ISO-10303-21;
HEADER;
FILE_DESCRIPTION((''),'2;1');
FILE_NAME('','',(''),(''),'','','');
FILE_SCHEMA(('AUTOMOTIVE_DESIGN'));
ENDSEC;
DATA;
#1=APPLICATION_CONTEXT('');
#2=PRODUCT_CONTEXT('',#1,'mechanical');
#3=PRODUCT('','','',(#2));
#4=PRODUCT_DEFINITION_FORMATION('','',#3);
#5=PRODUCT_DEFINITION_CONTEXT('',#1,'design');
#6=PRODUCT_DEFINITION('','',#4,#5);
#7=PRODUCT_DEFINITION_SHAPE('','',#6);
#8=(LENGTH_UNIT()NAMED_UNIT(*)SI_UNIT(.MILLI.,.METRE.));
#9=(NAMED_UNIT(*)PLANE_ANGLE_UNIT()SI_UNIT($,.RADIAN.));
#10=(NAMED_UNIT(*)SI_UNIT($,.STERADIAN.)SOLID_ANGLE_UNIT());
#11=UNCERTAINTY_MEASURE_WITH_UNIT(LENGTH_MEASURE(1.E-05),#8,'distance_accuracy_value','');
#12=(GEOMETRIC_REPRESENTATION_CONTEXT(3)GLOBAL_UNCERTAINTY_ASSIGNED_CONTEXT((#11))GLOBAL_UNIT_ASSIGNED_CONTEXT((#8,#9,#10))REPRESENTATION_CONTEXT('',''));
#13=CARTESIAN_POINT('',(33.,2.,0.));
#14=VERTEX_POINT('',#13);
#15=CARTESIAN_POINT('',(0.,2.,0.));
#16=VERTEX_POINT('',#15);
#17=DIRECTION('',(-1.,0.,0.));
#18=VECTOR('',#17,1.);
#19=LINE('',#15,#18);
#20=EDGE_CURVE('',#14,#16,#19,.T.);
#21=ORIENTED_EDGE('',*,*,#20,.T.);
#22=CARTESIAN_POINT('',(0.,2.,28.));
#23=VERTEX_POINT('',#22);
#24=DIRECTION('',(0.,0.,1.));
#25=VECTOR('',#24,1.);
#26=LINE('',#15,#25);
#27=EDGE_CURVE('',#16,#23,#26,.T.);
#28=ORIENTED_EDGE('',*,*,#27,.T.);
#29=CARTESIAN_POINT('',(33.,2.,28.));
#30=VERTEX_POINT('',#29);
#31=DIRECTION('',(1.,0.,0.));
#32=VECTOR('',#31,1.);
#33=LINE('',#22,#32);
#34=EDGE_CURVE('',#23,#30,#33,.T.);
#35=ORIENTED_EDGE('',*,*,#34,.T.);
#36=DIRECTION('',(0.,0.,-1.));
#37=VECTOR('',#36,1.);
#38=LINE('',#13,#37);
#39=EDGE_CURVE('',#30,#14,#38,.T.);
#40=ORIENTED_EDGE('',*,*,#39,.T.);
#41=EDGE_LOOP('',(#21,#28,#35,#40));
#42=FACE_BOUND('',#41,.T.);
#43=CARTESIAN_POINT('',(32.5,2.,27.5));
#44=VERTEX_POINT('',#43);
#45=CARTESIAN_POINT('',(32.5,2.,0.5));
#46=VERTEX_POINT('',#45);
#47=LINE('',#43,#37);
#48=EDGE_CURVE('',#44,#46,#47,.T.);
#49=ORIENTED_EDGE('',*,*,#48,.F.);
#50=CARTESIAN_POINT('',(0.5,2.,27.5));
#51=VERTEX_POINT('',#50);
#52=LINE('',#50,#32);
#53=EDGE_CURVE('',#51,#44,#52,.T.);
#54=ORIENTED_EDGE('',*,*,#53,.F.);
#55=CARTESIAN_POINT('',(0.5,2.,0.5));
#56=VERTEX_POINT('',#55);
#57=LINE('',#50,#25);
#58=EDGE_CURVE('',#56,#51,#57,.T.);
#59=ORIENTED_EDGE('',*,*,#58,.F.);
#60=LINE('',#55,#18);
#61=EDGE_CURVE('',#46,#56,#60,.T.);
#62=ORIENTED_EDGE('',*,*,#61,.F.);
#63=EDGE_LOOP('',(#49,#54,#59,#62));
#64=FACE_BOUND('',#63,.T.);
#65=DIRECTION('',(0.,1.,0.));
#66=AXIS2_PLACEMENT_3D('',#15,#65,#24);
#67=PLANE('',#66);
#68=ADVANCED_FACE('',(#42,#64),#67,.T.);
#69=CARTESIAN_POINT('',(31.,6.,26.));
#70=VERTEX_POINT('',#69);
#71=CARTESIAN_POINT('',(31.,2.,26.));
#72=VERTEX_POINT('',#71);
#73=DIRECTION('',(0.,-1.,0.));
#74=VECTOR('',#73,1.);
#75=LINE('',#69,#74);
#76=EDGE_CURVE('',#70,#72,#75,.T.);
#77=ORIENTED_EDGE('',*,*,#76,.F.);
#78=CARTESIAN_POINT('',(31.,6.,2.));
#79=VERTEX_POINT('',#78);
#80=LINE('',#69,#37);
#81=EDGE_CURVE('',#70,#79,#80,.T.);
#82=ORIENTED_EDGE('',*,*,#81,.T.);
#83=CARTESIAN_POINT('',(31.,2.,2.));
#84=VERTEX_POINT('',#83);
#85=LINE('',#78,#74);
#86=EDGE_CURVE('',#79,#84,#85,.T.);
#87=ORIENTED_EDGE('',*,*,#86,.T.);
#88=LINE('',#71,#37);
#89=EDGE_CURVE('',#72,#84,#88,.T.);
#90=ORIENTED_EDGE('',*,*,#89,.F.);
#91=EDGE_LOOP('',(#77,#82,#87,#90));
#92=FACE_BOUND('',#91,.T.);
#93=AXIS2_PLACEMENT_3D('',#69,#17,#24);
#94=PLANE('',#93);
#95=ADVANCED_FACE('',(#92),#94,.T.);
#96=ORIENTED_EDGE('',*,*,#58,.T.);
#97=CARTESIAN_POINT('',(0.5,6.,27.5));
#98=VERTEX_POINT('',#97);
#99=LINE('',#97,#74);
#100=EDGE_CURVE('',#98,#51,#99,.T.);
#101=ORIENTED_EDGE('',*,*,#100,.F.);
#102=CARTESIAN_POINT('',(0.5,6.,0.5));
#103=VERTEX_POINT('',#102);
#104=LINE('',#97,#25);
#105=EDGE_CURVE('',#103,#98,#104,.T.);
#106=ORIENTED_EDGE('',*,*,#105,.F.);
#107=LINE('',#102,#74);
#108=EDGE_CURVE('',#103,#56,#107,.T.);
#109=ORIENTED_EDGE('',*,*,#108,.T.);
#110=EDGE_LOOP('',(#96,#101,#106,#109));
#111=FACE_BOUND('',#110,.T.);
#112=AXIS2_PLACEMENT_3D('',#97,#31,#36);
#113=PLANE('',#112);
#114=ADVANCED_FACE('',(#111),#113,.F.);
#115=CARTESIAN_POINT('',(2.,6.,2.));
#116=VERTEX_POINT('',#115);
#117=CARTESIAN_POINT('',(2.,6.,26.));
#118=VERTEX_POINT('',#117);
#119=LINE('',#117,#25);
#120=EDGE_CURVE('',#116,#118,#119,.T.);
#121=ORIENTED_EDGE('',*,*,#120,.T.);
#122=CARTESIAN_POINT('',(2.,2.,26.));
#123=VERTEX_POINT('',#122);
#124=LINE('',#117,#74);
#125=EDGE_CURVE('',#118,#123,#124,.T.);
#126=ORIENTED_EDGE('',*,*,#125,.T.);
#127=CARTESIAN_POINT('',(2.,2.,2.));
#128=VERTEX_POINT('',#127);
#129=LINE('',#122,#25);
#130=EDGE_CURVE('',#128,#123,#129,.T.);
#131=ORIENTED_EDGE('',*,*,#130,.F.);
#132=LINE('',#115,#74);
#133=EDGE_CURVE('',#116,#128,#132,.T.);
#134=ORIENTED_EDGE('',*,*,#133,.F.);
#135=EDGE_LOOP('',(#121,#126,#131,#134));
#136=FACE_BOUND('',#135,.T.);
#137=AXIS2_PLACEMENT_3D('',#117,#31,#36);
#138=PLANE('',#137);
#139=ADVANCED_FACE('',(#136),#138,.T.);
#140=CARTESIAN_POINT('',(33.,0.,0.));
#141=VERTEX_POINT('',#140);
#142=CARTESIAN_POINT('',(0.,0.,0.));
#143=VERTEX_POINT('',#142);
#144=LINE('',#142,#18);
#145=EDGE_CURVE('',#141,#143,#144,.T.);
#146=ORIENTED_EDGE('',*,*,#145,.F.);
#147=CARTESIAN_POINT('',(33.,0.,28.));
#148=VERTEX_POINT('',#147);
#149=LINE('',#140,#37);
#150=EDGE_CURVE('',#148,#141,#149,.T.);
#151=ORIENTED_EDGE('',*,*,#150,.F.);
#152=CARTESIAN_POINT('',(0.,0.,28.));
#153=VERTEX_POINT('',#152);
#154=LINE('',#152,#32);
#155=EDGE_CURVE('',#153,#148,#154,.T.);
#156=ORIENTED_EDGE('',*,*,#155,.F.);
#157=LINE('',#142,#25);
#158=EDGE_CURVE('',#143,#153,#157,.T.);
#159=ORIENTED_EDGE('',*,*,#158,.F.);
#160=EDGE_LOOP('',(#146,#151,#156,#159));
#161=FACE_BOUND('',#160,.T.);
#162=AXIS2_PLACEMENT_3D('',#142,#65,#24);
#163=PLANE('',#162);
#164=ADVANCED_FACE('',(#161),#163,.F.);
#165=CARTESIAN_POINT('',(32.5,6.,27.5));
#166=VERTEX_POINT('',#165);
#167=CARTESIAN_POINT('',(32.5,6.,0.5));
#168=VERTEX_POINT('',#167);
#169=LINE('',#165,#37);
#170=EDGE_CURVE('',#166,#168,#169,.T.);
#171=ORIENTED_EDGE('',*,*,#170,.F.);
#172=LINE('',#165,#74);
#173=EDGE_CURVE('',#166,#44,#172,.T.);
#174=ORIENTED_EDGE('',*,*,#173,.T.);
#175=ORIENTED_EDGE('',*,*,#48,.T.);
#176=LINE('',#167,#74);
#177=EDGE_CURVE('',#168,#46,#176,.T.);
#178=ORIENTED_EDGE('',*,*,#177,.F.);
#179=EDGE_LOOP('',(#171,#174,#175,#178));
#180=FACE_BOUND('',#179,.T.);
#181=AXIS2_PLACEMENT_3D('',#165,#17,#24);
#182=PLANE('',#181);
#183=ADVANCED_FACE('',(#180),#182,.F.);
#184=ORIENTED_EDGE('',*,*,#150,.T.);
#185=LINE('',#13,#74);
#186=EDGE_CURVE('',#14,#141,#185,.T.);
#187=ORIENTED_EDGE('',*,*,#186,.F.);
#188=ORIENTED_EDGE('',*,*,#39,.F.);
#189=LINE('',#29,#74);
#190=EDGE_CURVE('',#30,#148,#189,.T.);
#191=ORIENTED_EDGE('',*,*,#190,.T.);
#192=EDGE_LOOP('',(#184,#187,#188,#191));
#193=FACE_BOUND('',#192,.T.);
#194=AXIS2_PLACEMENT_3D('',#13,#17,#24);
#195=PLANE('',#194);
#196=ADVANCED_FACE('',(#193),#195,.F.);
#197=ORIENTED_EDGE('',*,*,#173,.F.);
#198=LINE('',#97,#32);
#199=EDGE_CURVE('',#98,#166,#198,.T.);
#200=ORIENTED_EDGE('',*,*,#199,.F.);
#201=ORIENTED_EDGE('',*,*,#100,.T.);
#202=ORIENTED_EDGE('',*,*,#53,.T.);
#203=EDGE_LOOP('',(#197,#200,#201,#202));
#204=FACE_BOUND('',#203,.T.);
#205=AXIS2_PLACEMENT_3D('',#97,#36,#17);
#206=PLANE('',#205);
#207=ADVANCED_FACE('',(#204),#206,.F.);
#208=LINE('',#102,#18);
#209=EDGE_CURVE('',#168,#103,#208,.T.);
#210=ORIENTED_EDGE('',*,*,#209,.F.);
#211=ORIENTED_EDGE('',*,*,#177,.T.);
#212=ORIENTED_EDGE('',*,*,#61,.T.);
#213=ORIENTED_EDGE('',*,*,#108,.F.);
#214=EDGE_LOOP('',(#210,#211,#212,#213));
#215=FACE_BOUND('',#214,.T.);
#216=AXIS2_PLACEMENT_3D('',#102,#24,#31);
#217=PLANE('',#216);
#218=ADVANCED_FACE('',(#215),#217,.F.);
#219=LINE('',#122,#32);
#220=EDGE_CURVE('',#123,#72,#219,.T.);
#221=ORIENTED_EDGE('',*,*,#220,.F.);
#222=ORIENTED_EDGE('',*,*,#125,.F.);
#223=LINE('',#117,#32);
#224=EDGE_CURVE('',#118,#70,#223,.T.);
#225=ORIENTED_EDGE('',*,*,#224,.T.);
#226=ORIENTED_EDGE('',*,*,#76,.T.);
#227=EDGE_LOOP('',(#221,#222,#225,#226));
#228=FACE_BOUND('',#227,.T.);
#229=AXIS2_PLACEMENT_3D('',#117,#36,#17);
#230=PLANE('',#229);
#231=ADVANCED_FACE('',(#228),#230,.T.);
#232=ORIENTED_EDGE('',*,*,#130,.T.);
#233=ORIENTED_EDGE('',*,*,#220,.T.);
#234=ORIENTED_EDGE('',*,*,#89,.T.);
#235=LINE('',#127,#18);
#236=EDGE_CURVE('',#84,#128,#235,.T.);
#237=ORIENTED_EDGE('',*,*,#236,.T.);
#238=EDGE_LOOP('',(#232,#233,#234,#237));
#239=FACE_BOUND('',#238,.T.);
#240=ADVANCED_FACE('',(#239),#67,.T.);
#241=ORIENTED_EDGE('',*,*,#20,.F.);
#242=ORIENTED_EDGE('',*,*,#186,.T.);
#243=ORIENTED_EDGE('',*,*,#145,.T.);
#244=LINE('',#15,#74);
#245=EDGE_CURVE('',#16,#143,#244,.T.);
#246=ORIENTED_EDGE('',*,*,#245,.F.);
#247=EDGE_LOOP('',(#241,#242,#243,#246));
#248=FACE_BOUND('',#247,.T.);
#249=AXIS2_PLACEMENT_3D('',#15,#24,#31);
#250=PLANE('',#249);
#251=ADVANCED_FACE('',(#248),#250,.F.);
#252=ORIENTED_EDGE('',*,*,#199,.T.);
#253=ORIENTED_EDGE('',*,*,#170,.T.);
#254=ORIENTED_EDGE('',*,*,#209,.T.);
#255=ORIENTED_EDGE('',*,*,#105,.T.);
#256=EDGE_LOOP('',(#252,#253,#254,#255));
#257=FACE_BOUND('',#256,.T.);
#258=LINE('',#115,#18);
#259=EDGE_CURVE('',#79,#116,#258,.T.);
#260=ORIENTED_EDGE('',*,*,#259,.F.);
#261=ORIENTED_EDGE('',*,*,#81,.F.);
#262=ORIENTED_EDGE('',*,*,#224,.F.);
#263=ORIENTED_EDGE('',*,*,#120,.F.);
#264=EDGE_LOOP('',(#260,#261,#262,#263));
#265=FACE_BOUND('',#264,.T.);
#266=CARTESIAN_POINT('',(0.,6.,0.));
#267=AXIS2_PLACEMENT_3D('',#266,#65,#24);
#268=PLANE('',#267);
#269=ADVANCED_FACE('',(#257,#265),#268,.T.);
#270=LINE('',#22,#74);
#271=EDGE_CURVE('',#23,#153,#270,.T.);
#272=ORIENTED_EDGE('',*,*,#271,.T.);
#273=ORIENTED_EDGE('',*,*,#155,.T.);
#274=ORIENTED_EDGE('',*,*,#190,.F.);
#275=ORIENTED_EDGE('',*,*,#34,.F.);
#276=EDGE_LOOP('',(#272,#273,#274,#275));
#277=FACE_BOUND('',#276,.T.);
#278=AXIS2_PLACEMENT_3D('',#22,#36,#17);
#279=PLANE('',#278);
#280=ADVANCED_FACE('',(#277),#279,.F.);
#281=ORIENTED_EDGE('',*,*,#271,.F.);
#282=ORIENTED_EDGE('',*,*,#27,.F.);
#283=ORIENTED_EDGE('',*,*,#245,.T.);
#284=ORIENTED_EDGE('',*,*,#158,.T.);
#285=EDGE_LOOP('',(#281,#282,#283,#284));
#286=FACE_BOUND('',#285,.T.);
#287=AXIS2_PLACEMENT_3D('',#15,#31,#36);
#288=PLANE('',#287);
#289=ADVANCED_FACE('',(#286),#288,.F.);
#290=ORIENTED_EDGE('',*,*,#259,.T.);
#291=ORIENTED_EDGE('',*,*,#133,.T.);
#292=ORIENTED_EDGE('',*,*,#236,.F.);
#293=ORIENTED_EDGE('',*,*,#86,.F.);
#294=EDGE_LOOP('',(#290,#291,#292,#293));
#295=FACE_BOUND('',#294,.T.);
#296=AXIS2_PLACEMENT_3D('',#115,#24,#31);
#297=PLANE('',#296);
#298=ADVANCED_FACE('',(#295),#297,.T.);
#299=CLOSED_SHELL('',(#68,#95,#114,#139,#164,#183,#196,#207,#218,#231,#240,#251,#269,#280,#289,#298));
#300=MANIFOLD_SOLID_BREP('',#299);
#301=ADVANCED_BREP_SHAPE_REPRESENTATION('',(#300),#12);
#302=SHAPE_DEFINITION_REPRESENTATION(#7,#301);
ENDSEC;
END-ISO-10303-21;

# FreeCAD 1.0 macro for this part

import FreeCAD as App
import Part
import Sketcher

doc = App.newDocument("Part")
body = doc.addObject("PartDesign::Body", "Body")

sketch1 = body.newObject("Sketcher::SketchObject", "Sketch")
sketch1.AttachmentSupport = (doc.getObject("XZ_Plane"), [""])
sketch1.MapMode = "FlatFace"
sketch1.addGeometry([
    Part.LineSegment(App.Vector(0, 0, 0), App.Vector(0, 28, 0)),
    Part.LineSegment(App.Vector(0, 28, 0), App.Vector(33, 28, 0)),
    Part.LineSegment(App.Vector(33, 28, 0), App.Vector(33, 0, 0)),
    Part.LineSegment(App.Vector(33, 0, 0), App.Vector(0, 0, 0)),
], False)
sketch1.addConstraint([
    Sketcher.Constraint("Coincident", 0, 2, 1, 1),
    Sketcher.Constraint("Coincident", 1, 2, 2, 1),
    Sketcher.Constraint("Coincident", 2, 2, 3, 1),
    Sketcher.Constraint("Coincident", 3, 2, 0, 1),
    Sketcher.Constraint("Vertical", 0),
    Sketcher.Constraint("Horizontal", 1),
    Sketcher.Constraint("Vertical", 2),
    Sketcher.Constraint("Horizontal", 3),
    Sketcher.Constraint("Coincident", 3, 2, -1, 1),
    Sketcher.Constraint("DistanceX", 1, 1, 1, 2, 33.0),
    Sketcher.Constraint("DistanceY", 0, 1, 0, 2, 28.0),
])
pad1 = body.newObject("PartDesign::Pad", "Pad")
pad1.Profile = sketch1
pad1.Length = 2
pad1.Reversed = True

sketch2 = body.newObject("Sketcher::SketchObject", "Sketch001")
sketch2.AttachmentSupport = (doc.getObject("XZ_Plane"), [""])
sketch2.MapMode = "FlatFace"
sketch2.AttachmentOffset = App.Placement(App.Vector(0, 0, -2), App.Rotation())
sketch2.addGeometry([
    Part.LineSegment(App.Vector(0.5, 0.5, 0), App.Vector(0.5, 27.5, 0)),
    Part.LineSegment(App.Vector(0.5, 27.5, 0), App.Vector(32.5, 27.5, 0)),
    Part.LineSegment(App.Vector(32.5, 27.5, 0), App.Vector(32.5, 0.5, 0)),
    Part.LineSegment(App.Vector(32.5, 0.5, 0), App.Vector(0.5, 0.5, 0)),
    Part.LineSegment(App.Vector(31, 26, 0), App.Vector(2, 26, 0)),
    Part.LineSegment(App.Vector(2, 26, 0), App.Vector(2, 2, 0)),
    Part.LineSegment(App.Vector(2, 2, 0), App.Vector(31, 2, 0)),
    Part.LineSegment(App.Vector(31, 2, 0), App.Vector(31, 26, 0)),
], False)
sketch2.addConstraint([
    Sketcher.Constraint("Coincident", 0, 2, 1, 1),
    Sketcher.Constraint("Coincident", 1, 2, 2, 1),
    Sketcher.Constraint("Coincident", 2, 2, 3, 1),
    Sketcher.Constraint("Coincident", 3, 2, 0, 1),
    Sketcher.Constraint("Coincident", 4, 2, 5, 1),
    Sketcher.Constraint("Coincident", 5, 2, 6, 1),
    Sketcher.Constraint("Coincident", 6, 2, 7, 1),
    Sketcher.Constraint("Coincident", 7, 2, 4, 1),
    Sketcher.Constraint("Vertical", 0),
    Sketcher.Constraint("Horizontal", 1),
    Sketcher.Constraint("Vertical", 2),
    Sketcher.Constraint("Horizontal", 3),
    Sketcher.Constraint("Horizontal", 4),
    Sketcher.Constraint("Vertical", 5),
    Sketcher.Constraint("Horizontal", 6),
    Sketcher.Constraint("Vertical", 7),
    Sketcher.Constraint("DistanceX", 1, 1, 1, 2, 32.0),
    Sketcher.Constraint("DistanceX", 4, 2, 4, 1, 29.0),
    Sketcher.Constraint("DistanceY", 0, 1, 0, 2, 27.0),
    Sketcher.Constraint("DistanceY", 5, 2, 5, 1, 24.0),
    Sketcher.Constraint("DistanceX", -1, 1, 4, 2, 2.0),
    Sketcher.Constraint("DistanceY", -1, 1, 4, 2, 26.0),
    Sketcher.Constraint("DistanceX", -1, 1, 0, 2, 0.5),
    Sketcher.Constraint("DistanceY", -1, 1, 0, 2, 27.5),
])
pad2 = body.newObject("PartDesign::Pad", "Pad001")
pad2.Profile = sketch2
pad2.Length = 4
pad2.Reversed = True

doc.recompute()
